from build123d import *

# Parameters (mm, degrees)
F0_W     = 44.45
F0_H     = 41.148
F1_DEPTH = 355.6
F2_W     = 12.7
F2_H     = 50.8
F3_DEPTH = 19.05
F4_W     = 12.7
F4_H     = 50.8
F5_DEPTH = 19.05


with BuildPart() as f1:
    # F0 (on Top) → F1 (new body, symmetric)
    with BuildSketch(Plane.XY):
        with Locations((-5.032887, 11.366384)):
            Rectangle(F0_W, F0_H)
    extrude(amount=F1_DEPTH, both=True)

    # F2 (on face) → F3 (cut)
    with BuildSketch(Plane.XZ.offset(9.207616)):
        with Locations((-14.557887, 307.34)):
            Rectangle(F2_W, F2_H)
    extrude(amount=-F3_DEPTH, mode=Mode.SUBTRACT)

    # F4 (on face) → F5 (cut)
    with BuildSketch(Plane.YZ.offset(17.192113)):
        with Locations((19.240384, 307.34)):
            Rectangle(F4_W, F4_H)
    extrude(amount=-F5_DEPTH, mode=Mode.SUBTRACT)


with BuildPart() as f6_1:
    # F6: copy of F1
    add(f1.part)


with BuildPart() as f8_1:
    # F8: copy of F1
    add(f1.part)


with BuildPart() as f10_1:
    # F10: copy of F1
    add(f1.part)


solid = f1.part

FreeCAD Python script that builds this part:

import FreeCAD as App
import Part
import Sketcher
from FreeCAD import Vector
Q = App.Units.Quantity

doc = App.newDocument("Part")
body = doc.addObject("PartDesign::Body", "Body")

# Sketch on XY plane
sketch1 = body.newObject("Sketcher::SketchObject", "Sketch")
sketch1.AttachmentSupport = (doc.getObject("XY_Plane"), [""])
sketch1.MapMode = "FlatFace"
sketch1.addGeometry([
    Part.LineSegment(Vector(-27.257887, 31.940384, 0), Vector(-27.257887, -9.207616, 0)),
    Part.LineSegment(Vector(-27.257887, -9.207616, 0), Vector(17.192113, -9.207616, 0)),
    Part.LineSegment(Vector(17.192113, -9.207616, 0), Vector(17.192113, 31.940384, 0)),
    Part.LineSegment(Vector(17.192113, 31.940384, 0), Vector(-27.257887, 31.940384, 0)),
], False)
sketch1.addConstraint([
    Sketcher.Constraint("Coincident", 0, 2, 1, 1),
    Sketcher.Constraint("Coincident", 1, 2, 2, 1),
    Sketcher.Constraint("Coincident", 2, 2, 3, 1),
    Sketcher.Constraint("Coincident", 3, 2, 0, 1),
    Sketcher.Constraint("Vertical", 0),
    Sketcher.Constraint("Horizontal", 1),
    Sketcher.Constraint("Vertical", 2),
    Sketcher.Constraint("Horizontal", 3),
    Sketcher.Constraint("DistanceX", 1, 1, 1, 2, Q("1.75 in")),
    Sketcher.Constraint("DistanceY", 0, 2, 0, 1, Q("1.62 in")),
    Sketcher.Constraint("DistanceX", 0, 2, -1, 1, 27.257887),
    Sketcher.Constraint("DistanceY", 0, 2, -1, 1, 9.207616),
])
pad1 = body.newObject("PartDesign::Pad", "Pad")
pad1.Profile = sketch1
pad1.Length = Q("28 in")
pad1.Midplane = True

# Sketch on XZ plane
sketch2 = body.newObject("Sketcher::SketchObject", "Sketch001")
sketch2.AttachmentSupport = (doc.getObject("XZ_Plane"), [""])
sketch2.MapMode = "FlatFace"
sketch2.AttachmentOffset = App.Placement(Vector(0, 0, 9.207616), App.Rotation())
sketch2.addGeometry([
    Part.LineSegment(Vector(-20.907887, 332.74, 0), Vector(-20.907887, 281.94, 0)),
    Part.LineSegment(Vector(-20.907887, 281.94, 0), Vector(-8.207887, 281.94, 0)),
    Part.LineSegment(Vector(-8.207887, 281.94, 0), Vector(-8.207887, 332.74, 0)),
    Part.LineSegment(Vector(-8.207887, 332.74, 0), Vector(-20.907887, 332.74, 0)),
], False)
sketch2.addConstraint([
    Sketcher.Constraint("Coincident", 0, 2, 1, 1),
    Sketcher.Constraint("Coincident", 1, 2, 2, 1),
    Sketcher.Constraint("Coincident", 2, 2, 3, 1),
    Sketcher.Constraint("Coincident", 3, 2, 0, 1),
    Sketcher.Constraint("Vertical", 0),
    Sketcher.Constraint("Horizontal", 1),
    Sketcher.Constraint("Vertical", 2),
    Sketcher.Constraint("Horizontal", 3),
    Sketcher.Constraint("DistanceY", 0, 2, 0, 1, Q("2 in")),
    Sketcher.Constraint("DistanceX", 1, 1, 1, 2, Q("0.5 in")),
    Sketcher.Constraint("DistanceY", -1, 1, 0, 2, Q("11.1 in")),
    Sketcher.Constraint("DistanceX", 0, 2, -1, 1, 20.907887),
])
pocket1 = body.newObject("PartDesign::Pocket", "Pocket")
pocket1.Profile = sketch2
pocket1.Length = Q("0.75 in")

# Sketch on YZ plane
sketch3 = body.newObject("Sketcher::SketchObject", "Sketch002")
sketch3.AttachmentSupport = (doc.getObject("YZ_Plane"), [""])
sketch3.MapMode = "FlatFace"
sketch3.AttachmentOffset = App.Placement(Vector(0, 0, 17.192113), App.Rotation())
sketch3.addGeometry([
    Part.LineSegment(Vector(12.890384, 332.74, 0), Vector(12.890384, 281.94, 0)),
    Part.LineSegment(Vector(12.890384, 281.94, 0), Vector(25.590384, 281.94, 0)),
    Part.LineSegment(Vector(25.590384, 281.94, 0), Vector(25.590384, 332.74, 0)),
    Part.LineSegment(Vector(25.590384, 332.74, 0), Vector(12.890384, 332.74, 0)),
], False)
sketch3.addConstraint([
    Sketcher.Constraint("Coincident", 0, 2, 1, 1),
    Sketcher.Constraint("Coincident", 1, 2, 2, 1),
    Sketcher.Constraint("Coincident", 2, 2, 3, 1),
    Sketcher.Constraint("Coincident", 3, 2, 0, 1),
    Sketcher.Constraint("Vertical", 0),
    Sketcher.Constraint("Horizontal", 1),
    Sketcher.Constraint("Vertical", 2),
    Sketcher.Constraint("Horizontal", 3),
    Sketcher.Constraint("DistanceY", 0, 2, 0, 1, Q("2 in")),
    Sketcher.Constraint("DistanceX", 1, 1, 1, 2, Q("0.5 in")),
    Sketcher.Constraint("DistanceY", -1, 1, 0, 2, Q("11.1 in")),
    Sketcher.Constraint("DistanceX", -1, 1, 0, 2, 12.890384),
])
pocket2 = body.newObject("PartDesign::Pocket", "Pocket001")
pocket2.Profile = sketch3
pocket2.Length = Q("0.75 in")
body2 = doc.addObject("PartDesign::Body", "Body001")
doc.recompute()

body2.BaseFeature = body
doc.recompute()
body3 = doc.addObject("PartDesign::Body", "Body002")
doc.recompute()

body3.BaseFeature = body
doc.recompute()
body4 = doc.addObject("PartDesign::Body", "Body003")
doc.recompute()

body4.BaseFeature = body
doc.recompute()
body.Visibility = False
body2.Visibility = False
body3.Visibility = False

doc.recompute()
